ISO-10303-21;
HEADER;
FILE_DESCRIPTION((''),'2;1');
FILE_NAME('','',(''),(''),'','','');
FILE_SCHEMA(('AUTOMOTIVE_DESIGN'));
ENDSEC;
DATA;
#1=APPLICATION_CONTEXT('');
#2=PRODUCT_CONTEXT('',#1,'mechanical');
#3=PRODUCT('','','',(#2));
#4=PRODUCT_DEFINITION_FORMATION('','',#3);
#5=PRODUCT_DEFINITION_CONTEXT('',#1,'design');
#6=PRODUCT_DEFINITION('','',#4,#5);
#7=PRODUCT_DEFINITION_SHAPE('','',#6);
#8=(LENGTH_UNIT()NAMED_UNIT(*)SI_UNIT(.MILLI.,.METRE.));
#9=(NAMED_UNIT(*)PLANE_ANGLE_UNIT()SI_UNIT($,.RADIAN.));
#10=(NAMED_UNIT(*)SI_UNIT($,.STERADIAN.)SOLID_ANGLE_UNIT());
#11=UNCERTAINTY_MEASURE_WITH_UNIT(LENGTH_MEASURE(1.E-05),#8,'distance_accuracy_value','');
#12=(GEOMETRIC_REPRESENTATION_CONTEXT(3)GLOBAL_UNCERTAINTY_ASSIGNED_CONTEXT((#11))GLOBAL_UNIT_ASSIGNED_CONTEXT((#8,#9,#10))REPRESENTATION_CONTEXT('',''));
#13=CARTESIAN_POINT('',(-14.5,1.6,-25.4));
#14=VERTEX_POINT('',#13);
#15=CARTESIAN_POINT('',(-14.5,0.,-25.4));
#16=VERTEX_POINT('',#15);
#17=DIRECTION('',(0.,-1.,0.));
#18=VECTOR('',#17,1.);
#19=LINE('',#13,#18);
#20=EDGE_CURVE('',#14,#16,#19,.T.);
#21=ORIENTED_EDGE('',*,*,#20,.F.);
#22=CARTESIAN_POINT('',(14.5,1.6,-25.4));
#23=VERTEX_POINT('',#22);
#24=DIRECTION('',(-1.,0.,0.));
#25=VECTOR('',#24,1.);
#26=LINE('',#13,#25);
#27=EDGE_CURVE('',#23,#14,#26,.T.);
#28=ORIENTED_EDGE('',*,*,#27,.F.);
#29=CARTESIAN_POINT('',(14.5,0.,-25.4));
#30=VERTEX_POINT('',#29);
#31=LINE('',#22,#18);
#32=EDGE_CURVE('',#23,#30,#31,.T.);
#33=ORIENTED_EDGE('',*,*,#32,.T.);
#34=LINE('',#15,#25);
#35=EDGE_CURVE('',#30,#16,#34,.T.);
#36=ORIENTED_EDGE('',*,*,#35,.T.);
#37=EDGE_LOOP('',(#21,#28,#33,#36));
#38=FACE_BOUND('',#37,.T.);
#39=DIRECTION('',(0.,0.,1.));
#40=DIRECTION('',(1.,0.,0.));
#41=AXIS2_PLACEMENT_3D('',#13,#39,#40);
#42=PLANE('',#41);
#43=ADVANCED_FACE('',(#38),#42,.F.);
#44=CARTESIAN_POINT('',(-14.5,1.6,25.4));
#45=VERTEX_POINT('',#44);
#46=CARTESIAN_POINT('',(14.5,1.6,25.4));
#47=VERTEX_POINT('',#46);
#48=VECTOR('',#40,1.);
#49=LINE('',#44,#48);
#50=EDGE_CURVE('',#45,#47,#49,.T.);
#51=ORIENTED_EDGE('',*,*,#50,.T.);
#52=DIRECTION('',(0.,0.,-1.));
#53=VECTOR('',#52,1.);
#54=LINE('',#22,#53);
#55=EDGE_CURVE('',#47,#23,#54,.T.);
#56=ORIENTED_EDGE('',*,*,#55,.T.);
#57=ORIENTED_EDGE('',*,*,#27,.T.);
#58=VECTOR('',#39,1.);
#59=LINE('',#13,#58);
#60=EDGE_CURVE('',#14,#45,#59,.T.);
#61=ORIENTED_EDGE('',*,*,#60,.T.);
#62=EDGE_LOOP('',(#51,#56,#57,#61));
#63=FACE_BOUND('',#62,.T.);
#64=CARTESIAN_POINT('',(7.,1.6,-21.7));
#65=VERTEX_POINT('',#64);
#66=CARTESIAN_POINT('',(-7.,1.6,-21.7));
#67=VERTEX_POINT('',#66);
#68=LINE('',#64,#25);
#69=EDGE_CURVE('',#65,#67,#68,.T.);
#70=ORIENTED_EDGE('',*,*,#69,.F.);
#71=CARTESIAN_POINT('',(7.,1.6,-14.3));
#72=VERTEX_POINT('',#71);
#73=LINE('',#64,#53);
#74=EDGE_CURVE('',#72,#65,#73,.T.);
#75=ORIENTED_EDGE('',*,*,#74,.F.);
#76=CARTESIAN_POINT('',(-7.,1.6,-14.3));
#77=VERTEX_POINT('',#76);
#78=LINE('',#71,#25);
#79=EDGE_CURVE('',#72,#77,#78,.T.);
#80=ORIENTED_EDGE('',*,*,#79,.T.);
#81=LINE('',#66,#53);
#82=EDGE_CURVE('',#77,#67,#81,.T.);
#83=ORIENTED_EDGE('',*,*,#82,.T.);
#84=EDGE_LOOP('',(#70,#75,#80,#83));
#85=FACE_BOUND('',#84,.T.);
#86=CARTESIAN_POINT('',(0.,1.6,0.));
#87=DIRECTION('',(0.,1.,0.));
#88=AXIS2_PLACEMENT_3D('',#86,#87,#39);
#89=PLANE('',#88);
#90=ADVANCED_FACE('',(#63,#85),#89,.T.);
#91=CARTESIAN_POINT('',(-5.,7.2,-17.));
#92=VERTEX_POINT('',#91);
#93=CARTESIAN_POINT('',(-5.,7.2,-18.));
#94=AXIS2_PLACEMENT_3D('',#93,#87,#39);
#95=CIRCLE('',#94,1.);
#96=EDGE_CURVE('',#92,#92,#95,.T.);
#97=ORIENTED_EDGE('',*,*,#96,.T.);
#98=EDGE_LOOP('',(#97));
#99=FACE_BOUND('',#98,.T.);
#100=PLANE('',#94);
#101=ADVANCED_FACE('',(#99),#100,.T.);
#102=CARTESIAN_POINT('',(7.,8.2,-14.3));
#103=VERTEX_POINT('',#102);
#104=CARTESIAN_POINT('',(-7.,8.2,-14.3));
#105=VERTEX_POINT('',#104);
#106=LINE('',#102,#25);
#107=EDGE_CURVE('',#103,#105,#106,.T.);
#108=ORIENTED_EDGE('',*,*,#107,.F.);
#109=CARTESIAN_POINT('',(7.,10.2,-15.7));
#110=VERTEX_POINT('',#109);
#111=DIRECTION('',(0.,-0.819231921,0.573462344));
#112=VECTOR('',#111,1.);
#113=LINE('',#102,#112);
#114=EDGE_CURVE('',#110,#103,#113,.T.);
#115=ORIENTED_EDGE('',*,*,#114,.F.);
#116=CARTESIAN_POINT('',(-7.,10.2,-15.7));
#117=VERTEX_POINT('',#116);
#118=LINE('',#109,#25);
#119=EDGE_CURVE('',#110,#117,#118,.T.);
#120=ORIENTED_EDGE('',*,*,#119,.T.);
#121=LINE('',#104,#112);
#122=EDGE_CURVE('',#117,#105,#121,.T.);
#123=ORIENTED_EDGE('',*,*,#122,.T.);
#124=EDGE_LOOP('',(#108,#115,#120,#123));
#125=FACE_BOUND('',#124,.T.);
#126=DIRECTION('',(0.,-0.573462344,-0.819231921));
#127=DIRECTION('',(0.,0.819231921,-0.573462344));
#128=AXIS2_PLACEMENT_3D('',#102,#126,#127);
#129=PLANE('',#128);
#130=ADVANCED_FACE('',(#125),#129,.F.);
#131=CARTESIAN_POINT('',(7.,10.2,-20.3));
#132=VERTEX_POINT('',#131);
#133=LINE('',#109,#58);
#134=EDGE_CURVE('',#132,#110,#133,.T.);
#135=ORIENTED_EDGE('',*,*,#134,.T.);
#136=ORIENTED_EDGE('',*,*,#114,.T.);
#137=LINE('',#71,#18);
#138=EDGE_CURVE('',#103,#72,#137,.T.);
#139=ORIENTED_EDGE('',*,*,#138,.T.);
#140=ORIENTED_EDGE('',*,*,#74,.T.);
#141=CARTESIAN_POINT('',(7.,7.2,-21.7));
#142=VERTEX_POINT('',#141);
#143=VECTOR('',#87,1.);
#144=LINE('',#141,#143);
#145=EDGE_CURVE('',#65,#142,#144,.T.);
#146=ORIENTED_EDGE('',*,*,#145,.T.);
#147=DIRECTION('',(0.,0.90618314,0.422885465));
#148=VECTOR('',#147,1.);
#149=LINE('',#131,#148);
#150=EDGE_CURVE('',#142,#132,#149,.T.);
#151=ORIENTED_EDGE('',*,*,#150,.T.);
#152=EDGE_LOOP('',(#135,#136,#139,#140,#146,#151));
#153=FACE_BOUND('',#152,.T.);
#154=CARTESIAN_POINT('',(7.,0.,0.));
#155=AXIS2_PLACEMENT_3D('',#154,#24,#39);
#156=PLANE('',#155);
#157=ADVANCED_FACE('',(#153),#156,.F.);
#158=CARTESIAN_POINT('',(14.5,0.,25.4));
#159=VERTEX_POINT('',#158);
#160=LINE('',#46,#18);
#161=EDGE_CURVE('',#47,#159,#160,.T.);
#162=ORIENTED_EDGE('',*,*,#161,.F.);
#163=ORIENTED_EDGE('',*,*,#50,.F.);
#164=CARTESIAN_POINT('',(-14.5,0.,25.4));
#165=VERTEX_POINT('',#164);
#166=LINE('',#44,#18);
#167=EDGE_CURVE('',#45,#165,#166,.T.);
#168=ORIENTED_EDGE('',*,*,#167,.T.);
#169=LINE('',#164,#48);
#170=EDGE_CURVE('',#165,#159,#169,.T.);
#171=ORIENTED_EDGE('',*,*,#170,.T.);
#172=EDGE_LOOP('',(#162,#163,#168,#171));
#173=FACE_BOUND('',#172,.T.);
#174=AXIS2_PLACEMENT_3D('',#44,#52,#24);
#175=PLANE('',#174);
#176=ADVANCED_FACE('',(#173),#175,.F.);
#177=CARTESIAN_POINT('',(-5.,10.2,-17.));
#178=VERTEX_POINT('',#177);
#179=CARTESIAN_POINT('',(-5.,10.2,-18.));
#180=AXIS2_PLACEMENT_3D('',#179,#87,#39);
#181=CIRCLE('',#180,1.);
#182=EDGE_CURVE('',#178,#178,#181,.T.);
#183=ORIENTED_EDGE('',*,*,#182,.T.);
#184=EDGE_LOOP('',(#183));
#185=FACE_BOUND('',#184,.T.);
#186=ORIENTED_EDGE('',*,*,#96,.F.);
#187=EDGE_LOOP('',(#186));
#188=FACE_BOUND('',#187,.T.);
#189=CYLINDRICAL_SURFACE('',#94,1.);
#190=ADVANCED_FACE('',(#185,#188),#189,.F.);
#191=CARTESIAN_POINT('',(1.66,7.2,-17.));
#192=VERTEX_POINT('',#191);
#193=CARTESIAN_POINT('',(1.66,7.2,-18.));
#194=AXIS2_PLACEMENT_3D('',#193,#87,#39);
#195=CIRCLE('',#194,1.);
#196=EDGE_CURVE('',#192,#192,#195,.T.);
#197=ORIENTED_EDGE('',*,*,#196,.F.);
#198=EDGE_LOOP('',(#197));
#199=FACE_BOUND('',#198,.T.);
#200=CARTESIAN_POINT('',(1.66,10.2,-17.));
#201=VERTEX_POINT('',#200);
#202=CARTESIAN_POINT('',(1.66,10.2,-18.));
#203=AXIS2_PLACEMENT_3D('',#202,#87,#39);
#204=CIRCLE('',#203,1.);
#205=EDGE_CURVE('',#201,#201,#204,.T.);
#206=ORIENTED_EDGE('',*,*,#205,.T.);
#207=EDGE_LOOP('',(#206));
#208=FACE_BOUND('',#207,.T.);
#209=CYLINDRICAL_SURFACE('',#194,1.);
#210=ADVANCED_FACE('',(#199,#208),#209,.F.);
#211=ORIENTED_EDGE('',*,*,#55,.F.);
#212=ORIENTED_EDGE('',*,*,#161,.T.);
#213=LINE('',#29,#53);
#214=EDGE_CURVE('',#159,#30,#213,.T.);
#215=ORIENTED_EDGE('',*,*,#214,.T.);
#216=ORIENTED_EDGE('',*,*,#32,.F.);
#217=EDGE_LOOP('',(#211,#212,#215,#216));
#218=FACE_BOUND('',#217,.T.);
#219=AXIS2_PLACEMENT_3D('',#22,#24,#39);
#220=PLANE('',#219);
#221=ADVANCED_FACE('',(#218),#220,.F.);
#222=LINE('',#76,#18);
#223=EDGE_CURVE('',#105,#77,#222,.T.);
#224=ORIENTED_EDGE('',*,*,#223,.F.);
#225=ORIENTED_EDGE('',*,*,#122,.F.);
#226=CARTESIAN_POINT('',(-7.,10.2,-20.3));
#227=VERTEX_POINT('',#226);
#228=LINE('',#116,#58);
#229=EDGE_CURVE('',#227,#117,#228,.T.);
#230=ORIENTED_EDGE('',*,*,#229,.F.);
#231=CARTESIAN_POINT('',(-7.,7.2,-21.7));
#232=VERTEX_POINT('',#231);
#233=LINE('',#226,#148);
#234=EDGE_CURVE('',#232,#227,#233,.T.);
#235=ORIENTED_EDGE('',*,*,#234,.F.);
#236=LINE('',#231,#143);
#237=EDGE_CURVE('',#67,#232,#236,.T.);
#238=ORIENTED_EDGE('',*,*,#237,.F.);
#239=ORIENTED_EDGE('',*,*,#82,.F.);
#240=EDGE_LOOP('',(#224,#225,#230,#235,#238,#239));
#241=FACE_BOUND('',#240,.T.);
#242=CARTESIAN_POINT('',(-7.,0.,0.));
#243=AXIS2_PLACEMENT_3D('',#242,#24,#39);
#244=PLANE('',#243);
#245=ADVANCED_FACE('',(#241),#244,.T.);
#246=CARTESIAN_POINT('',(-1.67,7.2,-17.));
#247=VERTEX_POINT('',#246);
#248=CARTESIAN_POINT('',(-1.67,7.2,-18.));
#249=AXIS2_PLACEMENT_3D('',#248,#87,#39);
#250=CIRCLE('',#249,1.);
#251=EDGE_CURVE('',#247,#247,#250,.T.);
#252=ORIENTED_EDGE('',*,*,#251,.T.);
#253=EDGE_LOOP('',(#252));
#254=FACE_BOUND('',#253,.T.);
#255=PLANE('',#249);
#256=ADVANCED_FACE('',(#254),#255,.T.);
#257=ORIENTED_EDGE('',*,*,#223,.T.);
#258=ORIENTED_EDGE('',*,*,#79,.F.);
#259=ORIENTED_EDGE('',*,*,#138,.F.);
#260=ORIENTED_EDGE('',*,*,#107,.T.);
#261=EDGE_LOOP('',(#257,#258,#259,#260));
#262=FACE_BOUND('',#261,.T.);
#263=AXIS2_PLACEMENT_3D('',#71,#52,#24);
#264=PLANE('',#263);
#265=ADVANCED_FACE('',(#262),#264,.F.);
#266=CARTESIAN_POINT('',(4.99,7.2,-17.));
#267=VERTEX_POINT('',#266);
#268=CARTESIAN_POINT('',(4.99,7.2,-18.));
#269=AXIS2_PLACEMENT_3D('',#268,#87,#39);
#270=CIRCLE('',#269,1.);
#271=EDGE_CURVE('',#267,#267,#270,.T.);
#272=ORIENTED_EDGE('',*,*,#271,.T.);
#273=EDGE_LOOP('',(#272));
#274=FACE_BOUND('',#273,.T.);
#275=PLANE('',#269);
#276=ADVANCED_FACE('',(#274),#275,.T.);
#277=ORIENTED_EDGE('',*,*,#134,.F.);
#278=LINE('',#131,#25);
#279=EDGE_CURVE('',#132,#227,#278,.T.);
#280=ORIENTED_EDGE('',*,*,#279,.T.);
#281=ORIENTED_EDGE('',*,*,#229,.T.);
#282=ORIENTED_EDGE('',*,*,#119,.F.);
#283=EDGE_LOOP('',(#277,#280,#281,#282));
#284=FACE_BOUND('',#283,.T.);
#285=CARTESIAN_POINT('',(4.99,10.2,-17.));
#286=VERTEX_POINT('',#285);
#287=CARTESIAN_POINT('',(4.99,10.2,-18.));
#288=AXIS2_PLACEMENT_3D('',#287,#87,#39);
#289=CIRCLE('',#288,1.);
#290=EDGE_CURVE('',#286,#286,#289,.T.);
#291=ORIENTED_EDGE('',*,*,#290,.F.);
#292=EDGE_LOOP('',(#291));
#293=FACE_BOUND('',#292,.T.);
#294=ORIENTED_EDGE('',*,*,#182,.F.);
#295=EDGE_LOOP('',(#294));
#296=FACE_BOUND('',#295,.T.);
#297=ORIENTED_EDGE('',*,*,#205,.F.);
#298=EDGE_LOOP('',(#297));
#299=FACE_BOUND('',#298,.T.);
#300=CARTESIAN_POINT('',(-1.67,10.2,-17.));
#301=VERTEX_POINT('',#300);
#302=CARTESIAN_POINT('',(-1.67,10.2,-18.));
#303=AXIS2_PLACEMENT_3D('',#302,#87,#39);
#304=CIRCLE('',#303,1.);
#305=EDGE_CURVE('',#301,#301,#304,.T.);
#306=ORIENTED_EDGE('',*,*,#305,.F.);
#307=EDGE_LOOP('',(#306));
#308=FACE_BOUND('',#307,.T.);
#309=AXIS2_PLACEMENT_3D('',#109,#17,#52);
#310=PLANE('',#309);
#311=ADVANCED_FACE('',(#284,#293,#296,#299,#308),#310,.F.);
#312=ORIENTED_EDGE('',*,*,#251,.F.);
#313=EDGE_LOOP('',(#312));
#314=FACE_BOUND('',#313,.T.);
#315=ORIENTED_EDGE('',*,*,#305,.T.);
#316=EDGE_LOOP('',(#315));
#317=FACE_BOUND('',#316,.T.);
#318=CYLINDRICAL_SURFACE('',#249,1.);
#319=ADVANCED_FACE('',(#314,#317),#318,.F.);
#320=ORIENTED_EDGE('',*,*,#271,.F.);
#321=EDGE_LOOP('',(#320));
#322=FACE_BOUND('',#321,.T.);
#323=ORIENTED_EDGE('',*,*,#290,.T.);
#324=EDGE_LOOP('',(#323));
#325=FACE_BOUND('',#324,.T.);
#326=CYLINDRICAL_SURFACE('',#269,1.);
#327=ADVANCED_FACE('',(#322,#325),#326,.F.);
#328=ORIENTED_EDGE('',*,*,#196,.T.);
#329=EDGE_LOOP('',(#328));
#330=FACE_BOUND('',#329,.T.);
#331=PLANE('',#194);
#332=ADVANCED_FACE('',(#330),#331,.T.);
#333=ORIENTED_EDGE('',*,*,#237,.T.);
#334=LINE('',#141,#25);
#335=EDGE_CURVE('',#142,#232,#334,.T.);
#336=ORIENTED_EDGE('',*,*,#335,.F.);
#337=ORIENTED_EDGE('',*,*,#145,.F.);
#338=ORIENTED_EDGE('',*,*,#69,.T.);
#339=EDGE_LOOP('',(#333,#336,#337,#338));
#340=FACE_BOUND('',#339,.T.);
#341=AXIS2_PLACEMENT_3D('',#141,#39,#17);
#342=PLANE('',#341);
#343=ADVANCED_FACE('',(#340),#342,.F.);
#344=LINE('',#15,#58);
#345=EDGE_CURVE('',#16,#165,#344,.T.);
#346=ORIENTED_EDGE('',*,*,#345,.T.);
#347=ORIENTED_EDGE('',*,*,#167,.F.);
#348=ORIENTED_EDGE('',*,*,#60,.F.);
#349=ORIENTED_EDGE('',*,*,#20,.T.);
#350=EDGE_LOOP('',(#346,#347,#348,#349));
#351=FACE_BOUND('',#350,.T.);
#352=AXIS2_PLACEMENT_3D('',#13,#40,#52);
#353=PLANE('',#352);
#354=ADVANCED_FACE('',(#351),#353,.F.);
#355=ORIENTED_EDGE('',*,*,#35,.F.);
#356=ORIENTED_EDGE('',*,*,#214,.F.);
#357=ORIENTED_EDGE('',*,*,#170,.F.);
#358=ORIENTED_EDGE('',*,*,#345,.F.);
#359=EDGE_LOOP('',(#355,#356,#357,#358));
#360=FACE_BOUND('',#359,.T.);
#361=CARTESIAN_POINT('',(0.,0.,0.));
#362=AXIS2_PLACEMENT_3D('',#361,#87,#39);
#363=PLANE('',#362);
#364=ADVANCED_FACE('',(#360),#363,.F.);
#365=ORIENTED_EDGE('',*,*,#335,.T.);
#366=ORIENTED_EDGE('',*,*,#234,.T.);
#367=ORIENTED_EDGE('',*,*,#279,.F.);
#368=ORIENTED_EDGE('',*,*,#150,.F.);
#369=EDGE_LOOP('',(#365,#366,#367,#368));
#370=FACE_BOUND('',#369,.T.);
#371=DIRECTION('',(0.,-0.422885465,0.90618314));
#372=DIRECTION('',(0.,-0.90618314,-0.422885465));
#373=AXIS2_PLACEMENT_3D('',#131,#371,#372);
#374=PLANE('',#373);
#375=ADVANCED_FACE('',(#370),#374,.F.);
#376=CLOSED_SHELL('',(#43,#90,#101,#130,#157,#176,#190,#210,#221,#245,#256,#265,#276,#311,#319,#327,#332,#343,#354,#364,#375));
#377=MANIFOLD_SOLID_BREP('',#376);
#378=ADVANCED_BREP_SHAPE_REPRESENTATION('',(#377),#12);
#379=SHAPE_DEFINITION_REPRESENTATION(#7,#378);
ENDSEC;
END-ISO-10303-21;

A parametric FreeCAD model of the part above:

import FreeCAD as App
import Part
import Sketcher
from FreeCAD import Vector


def add_polygon(sketch, points):
    """Adds a closed chain of lines whose ends are joined by coincident constraints."""
    first, n = sketch.GeometryCount, len(points)
    for a, b in zip(points, points[1:] + points[:1]):
        sketch.addGeometry(Part.LineSegment(App.Vector(*a, 0), App.Vector(*b, 0)), False)
    for i in range(n):
        sketch.addConstraint(Sketcher.Constraint("Coincident", first + i, 2, first + (i + 1) % n, 1))

doc = App.newDocument("Part")
body = doc.addObject("PartDesign::Body", "Body")

sketch1 = doc.addObject("Sketcher::SketchObject", "Sketch")
body.addObject(sketch1)
sketch1.AttachmentSupport = (doc.XZ_Plane, [""])
sketch1.MapMode = "FlatFace"
add_polygon(sketch1, [(-14, -25), (-14, 25), (14, 25), (14, -25)])
sketch1.addConstraint([
    Sketcher.Constraint("Vertical", 0),
    Sketcher.Constraint("Horizontal", 1),
    Sketcher.Constraint("Vertical", 2),
    Sketcher.Constraint("Horizontal", 3),
    Sketcher.Constraint("Symmetric", 0, 2, 2, 2, -1, 1),
    Sketcher.Constraint("DistanceX", 1, 1, 1, 2, 29.0),
    Sketcher.Constraint("DistanceY", 0, 1, 0, 2, 50.8),
])
pad1 = doc.addObject("PartDesign::Pad", "Pad")
body.addObject(pad1)
pad1.Profile = sketch1
pad1.Length = 1.6
pad1.Reversed = True

sketch2 = doc.addObject("Sketcher::SketchObject", "Sketch001")
body.addObject(sketch2)
sketch2.AttachmentSupport = (doc.YZ_Plane, [""])
sketch2.MapMode = "FlatFace"
add_polygon(sketch2, [(8.2, -14.3), (1.6, -14.3), (1.6, -21.7), (7.2, -21.7), (10.2, -20.3), (10.2, -15.7)])
sketch2.addConstraint([
    Sketcher.Constraint("Horizontal", 0),
    Sketcher.Constraint("Vertical", 1),
    Sketcher.Constraint("Horizontal", 2),
    Sketcher.Constraint("Vertical", 4),
    Sketcher.Constraint("DistanceX", 0, 2, 0, 1, 6.6),
    Sketcher.Constraint("DistanceX", 2, 1, 2, 2, 5.6),
    Sketcher.Constraint("DistanceY", 1, 2, 1, 1, 7.4),
    Sketcher.Constraint("DistanceY", 4, 1, 4, 2, 4.6),
    Sketcher.Constraint("DistanceX", 2, 2, 3, 2, 3.0),
    Sketcher.Constraint("DistanceY", 3, 2, 0, 2, 6.0),
    Sketcher.Constraint("DistanceX", -1, 1, 0, 2, 1.6),
    Sketcher.Constraint("DistanceY", 0, 2, -1, 1, 14.3),
])
pad2 = doc.addObject("PartDesign::Pad", "Pad001")
body.addObject(pad2)
pad2.Profile = sketch2
pad2.Length = 14
pad2.Midplane = True

sketch3 = doc.addObject("Sketcher::SketchObject", "Sketch002")
body.addObject(sketch3)
sketch3.AttachmentSupport = (doc.XZ_Plane, [""])
sketch3.MapMode = "FlatFace"
sketch3.AttachmentOffset = App.Placement(Vector(0, 0, -10.2), App.Rotation())
sketch3.addGeometry([
    Part.Circle(Vector(-5, -18, 0), Vector(0, 0, 1), 1),
    Part.Circle(Vector(-1.7, -18, 0), Vector(0, 0, 1), 1),
    Part.Circle(Vector(1.7, -18, 0), Vector(0, 0, 1), 1),
    Part.Circle(Vector(5, -18, 0), Vector(0, 0, 1), 1),
], False)
sketch3.addConstraint([
    Sketcher.Constraint("Equal", 0, 1),
    Sketcher.Constraint("Equal", 1, 2),
    Sketcher.Constraint("Equal", 2, 3),
    Sketcher.Constraint("Horizontal", 0, 3, 1, 3),
    Sketcher.Constraint("Horizontal", 1, 3, 2, 3),
    Sketcher.Constraint("Horizontal", 2, 3, 3, 3),
    Sketcher.Constraint("Diameter", 0, 2.0),
    Sketcher.Constraint("DistanceX", 0, 3, -1, 1, 5.0),
    Sketcher.Constraint("DistanceY", 0, 3, -1, 1, 18.0),
    Sketcher.Constraint("DistanceX", 1, 3, -1, 1, 1.67),
    Sketcher.Constraint("DistanceX", -1, 1, 2, 3, 1.66),
    Sketcher.Constraint("DistanceX", -1, 1, 3, 3, 4.99),
])
pocket1 = doc.addObject("PartDesign::Pocket", "Pocket")
body.addObject(pocket1)
pocket1.Profile = sketch3
pocket1.Length = 3
pocket1.Reversed = True

doc.recompute()
